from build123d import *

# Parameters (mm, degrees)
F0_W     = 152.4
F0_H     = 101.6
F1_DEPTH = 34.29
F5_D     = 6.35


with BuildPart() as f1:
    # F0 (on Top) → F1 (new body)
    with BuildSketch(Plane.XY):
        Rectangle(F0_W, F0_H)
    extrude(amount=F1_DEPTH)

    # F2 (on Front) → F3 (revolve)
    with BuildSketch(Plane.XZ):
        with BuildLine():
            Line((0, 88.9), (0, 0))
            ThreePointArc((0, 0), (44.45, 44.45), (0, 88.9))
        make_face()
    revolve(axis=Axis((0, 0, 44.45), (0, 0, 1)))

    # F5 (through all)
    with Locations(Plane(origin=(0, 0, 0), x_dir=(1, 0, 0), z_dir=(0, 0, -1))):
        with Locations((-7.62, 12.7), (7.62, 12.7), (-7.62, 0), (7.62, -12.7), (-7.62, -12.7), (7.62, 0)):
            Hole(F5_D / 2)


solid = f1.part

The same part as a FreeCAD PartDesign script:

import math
import FreeCAD as App
import Part
import Sketcher
Q = App.Units.Quantity


def add_polygon(sketch, points):
    """Adds a closed chain of lines whose ends are joined by coincident constraints."""
    first, n = sketch.GeometryCount, len(points)
    for a, b in zip(points, points[1:] + points[:1]):
        sketch.addGeometry(Part.LineSegment(App.Vector(*a, 0), App.Vector(*b, 0)), False)
    for i in range(n):
        sketch.addConstraint(Sketcher.Constraint("Coincident", first + i, 2, first + (i + 1) % n, 1))

doc = App.newDocument("Part")
body = doc.addObject("PartDesign::Body", "Body")

sketch1 = body.newObject("Sketcher::SketchObject", "Sketch")
sketch1.AttachmentSupport = (doc.getObject("XY_Plane"), [""])
sketch1.MapMode = "FlatFace"
add_polygon(sketch1, [(-76, 51), (-76, -51), (76, -51), (76, 51)])
sketch1.addConstraint(Sketcher.Constraint("Vertical", 0))
sketch1.addConstraint(Sketcher.Constraint("Horizontal", 1))
sketch1.addConstraint(Sketcher.Constraint("Vertical", 2))
sketch1.addConstraint(Sketcher.Constraint("Horizontal", 3))
sketch1.addConstraint(Sketcher.Constraint("Symmetric", 0, 2, 2, 2, -1, 1))
sketch1.addConstraint(Sketcher.Constraint("DistanceX", 1, 1, 1, 2, Q("6 in")))
sketch1.addConstraint(Sketcher.Constraint("DistanceY", 0, 2, 0, 1, Q("4 in")))
pad1 = body.newObject("PartDesign::Pad", "Pad")
pad1.Profile = sketch1
pad1.Length = Q("1.35 in")

sketch2 = body.newObject("Sketcher::SketchObject", "Sketch001")
sketch2.AttachmentSupport = (doc.getObject("XZ_Plane"), [""])
sketch2.MapMode = "FlatFace"
sketch2.addGeometry(Part.LineSegment(App.Vector(0, 89, 0), App.Vector(0, 0, 0)), False)
sketch2.addGeometry(Part.ArcOfCircle(Part.Circle(App.Vector(0, 44, 0), App.Vector(0, 0, 1), 44), math.radians(-90), math.radians(90)), False)
sketch2.addConstraint(Sketcher.Constraint("Coincident", 0, 1, 1, 2))
sketch2.addConstraint(Sketcher.Constraint("Coincident", 1, 1, 0, 2))
sketch2.addConstraint(Sketcher.Constraint("Vertical", 0))
sketch2.addConstraint(Sketcher.Constraint("Coincident", 1, 1, -1, 1))
sketch2.addConstraint(Sketcher.Constraint("PointOnObject", 1, 3, -2))
sketch2.addConstraint(Sketcher.Constraint("Radius", 1, Q("1.75 in")))
revolution = body.newObject("PartDesign::Revolution", "Revolution")
revolution.Profile = sketch2
revolution.ReferenceAxis = (sketch2, ["V_Axis"])
revolution.Angle = 360

sketch3 = body.newObject("Sketcher::SketchObject", "Sketch002")
sketch3.AttachmentSupport = (doc.getObject("XY_Plane"), [""])
sketch3.MapMode = "FlatFace"
sketch3.addGeometry(Part.Circle(App.Vector(-7.6, -12.7, 0), App.Vector(0, 0, 1), 3.2), False)
sketch3.addGeometry(Part.Circle(App.Vector(7.6, -12.7, 0), App.Vector(0, 0, 1), 3.2), False)
sketch3.addGeometry(Part.Circle(App.Vector(-7.6, 0, 0), App.Vector(0, 0, 1), 3.2), False)
sketch3.addGeometry(Part.Circle(App.Vector(7.6, 12.7, 0), App.Vector(0, 0, 1), 3.2), False)
sketch3.addGeometry(Part.Circle(App.Vector(-7.6, 12.7, 0), App.Vector(0, 0, 1), 3.2), False)
sketch3.addGeometry(Part.Circle(App.Vector(7.6, 0, 0), App.Vector(0, 0, 1), 3.2), False)
sketch3.addConstraint(Sketcher.Constraint("Equal", 0, 1))
sketch3.addConstraint(Sketcher.Constraint("Equal", 1, 2))
sketch3.addConstraint(Sketcher.Constraint("Equal", 2, 3))
sketch3.addConstraint(Sketcher.Constraint("Equal", 3, 4))
sketch3.addConstraint(Sketcher.Constraint("Equal", 4, 5))
sketch3.addConstraint(Sketcher.Constraint("Symmetric", 0, 3, 3, 3, -1, 1))
sketch3.addConstraint(Sketcher.Constraint("Symmetric", 1, 3, 4, 3, -1, 1))
sketch3.addConstraint(Sketcher.Constraint("Symmetric", 2, 3, 5, 3, -1, 1))
sketch3.addConstraint(Sketcher.Constraint("Symmetric", 0, 3, 1, 3, -2))
sketch3.addConstraint(Sketcher.Constraint("PointOnObject", 2, 3, -1))
sketch3.addConstraint(Sketcher.Constraint("Vertical", 0, 3, 2, 3))
sketch3.addConstraint(Sketcher.Constraint("Diameter", 0, Q("0.25 in")))
sketch3.addConstraint(Sketcher.Constraint("DistanceY", 1, 3, 3, 3, Q("1 in")))
sketch3.addConstraint(Sketcher.Constraint("DistanceX", 0, 3, -1, 1, Q("0.3 in")))
doc.recompute()
hole = body.newObject("PartDesign::Hole", "Hole")
hole.Profile = sketch3
hole.ThreadType = "None"
hole.Diameter = Q("0.25 in")
hole.DepthType = "ThroughAll"
hole.Reversed = True

doc.recompute()
